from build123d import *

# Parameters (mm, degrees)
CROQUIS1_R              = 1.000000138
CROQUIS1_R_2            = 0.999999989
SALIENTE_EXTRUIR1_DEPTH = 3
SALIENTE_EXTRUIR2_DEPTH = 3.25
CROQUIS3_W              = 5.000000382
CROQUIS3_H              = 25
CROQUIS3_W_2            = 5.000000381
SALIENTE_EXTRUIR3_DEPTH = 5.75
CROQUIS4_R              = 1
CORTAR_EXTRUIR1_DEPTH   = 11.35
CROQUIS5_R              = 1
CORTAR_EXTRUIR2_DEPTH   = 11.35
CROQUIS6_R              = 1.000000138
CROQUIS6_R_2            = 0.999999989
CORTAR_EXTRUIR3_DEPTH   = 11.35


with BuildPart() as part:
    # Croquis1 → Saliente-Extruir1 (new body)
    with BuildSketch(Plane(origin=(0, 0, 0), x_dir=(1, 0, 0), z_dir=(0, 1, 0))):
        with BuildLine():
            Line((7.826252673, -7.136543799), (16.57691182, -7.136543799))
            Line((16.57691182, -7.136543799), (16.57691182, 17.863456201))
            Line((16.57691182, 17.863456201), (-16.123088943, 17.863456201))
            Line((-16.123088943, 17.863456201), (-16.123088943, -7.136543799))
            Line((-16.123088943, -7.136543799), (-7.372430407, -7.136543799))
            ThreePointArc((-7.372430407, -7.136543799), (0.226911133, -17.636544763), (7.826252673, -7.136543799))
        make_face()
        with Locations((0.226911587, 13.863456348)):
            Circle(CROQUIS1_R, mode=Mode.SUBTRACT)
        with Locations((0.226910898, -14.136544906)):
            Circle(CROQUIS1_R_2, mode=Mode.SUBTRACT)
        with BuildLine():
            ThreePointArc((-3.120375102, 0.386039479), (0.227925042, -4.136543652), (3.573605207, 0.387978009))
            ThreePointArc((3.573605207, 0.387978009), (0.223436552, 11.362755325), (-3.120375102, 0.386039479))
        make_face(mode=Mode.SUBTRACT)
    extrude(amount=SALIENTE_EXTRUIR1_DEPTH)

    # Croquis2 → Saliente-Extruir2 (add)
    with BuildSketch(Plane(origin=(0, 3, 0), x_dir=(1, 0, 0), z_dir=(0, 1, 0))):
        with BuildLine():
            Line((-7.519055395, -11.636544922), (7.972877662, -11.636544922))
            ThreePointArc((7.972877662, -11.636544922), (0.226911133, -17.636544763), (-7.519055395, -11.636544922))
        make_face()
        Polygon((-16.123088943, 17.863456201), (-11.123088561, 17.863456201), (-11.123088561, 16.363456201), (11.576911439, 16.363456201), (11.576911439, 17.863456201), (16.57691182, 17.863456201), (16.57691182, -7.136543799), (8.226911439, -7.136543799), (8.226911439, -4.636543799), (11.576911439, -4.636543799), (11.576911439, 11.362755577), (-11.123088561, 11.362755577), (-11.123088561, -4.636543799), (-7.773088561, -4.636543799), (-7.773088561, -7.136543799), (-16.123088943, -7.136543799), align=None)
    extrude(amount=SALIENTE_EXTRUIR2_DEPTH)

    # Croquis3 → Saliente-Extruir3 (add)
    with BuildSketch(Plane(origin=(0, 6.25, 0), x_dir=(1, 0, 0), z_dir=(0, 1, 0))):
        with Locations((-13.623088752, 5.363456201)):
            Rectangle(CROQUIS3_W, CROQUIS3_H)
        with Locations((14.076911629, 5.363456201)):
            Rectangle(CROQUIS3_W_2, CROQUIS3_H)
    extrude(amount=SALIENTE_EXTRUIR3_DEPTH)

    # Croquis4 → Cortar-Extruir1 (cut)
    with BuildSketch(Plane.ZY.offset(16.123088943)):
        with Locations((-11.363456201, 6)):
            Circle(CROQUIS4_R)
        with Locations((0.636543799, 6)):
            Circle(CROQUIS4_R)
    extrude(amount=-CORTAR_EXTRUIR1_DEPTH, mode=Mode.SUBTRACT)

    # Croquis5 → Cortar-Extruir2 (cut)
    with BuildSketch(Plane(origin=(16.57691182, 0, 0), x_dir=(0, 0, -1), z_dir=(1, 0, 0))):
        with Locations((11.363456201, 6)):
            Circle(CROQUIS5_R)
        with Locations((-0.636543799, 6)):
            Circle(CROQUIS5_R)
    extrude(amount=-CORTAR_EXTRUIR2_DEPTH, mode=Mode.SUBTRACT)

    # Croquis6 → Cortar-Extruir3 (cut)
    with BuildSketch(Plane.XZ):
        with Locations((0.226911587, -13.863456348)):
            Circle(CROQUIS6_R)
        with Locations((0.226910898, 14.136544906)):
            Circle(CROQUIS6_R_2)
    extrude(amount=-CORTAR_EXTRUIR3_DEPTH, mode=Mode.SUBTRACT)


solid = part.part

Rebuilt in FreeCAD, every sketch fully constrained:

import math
import FreeCAD as App
import Part
import Sketcher


def add_polygon(sketch, points):
    """Adds a closed chain of lines whose ends are joined by coincident constraints."""
    first, n = sketch.GeometryCount, len(points)
    for a, b in zip(points, points[1:] + points[:1]):
        sketch.addGeometry(Part.LineSegment(App.Vector(*a, 0), App.Vector(*b, 0)), False)
    for i in range(n):
        sketch.addConstraint(Sketcher.Constraint("Coincident", first + i, 2, first + (i + 1) % n, 1))

doc = App.newDocument("Part")
params = doc.addObject("Spreadsheet::Sheet", "Params")
for row, (alias, value) in enumerate([
    ("sketch1_diameter", "2 mm"),
    ("sketch1_radius", "8 mm"),
    ("sketch1_radius2", "3.5 mm"),
    ("sketch1_height", "25 mm"),
    ("sketch1_width", "32.700001 mm"),
    ("pad1_length", "3 mm"),
    ("sketch2_radius", "8 mm"),
    ("sketch2_width", "5 mm"),
    ("sketch2_height", "25 mm"),
    ("sketch2_width2", "22.7 mm"),
    ("sketch2_height2", "2.5 mm"),
    ("pad2_length", "3.25 mm"),
    ("sketch3_width", "5 mm"),
    ("sketch3_height", "25 mm"),
    ("pad3_length", "5.75 mm"),
    ("sketch4_diameter", "2 mm"),
    ("pocket1_length", "11.35 mm"),
    ("sketch5_diameter", "2 mm"),
    ("pocket2_length", "11.35 mm"),
    ("sketch6_diameter", "2 mm"),
    ("pocket3_length", "11.35 mm"),
], start=1):
    params.set(f"A{row}", alias)
    params.set(f"B{row}", "=" + value)
    params.setAlias(f"B{row}", alias)

body = doc.addObject("PartDesign::Body", "Body")

# Sketch on XZ plane
sketch1 = doc.addObject("Sketcher::SketchObject", "Sketch")
body.addObject(sketch1)
sketch1.AttachmentSupport = (doc.XZ_Plane, [""])
sketch1.MapMode = "FlatFace"
sketch1.addGeometry(Part.LineSegment(App.Vector(7.8, 7.1, 0), App.Vector(16.6, 7.1, 0)), False)
sketch1.addGeometry(Part.LineSegment(App.Vector(16.6, 7.1, 0), App.Vector(16.6, -17.9, 0)), False)
sketch1.addGeometry(Part.LineSegment(App.Vector(16.6, -17.9, 0), App.Vector(-16.1, -17.9, 0)), False)
sketch1.addGeometry(Part.LineSegment(App.Vector(-16.1, -17.9, 0), App.Vector(-16.1, 7.1, 0)), False)
sketch1.addGeometry(Part.LineSegment(App.Vector(-16.1, 7.1, 0), App.Vector(-7.4, 7.1, 0)), False)
sketch1.addGeometry(Part.ArcOfCircle(Part.Circle(App.Vector(0.2, 9.6, 0), App.Vector(0, 0, 1), 8), math.radians(-18), math.radians(198)), False)
sketch1.addGeometry(Part.Circle(App.Vector(0.2, 14.1, 0), App.Vector(0, 0, 1), 1), False)
sketch1.addGeometry(Part.ArcOfCircle(Part.Circle(App.Vector(0.2, 0.6, 0), App.Vector(0, 0, 1), 3.5), math.radians(-17), math.radians(197)), False)
sketch1.addGeometry(Part.ArcOfCircle(Part.Circle(App.Vector(0.2, -5.4, 0), App.Vector(0, 0, 1), 6), math.radians(124), math.radians(416)), False)
sketch1.addGeometry(Part.Circle(App.Vector(0.2, -13.9, 0), App.Vector(0, 0, 1), 1), False)
sketch1.addConstraint(Sketcher.Constraint("Coincident", 0, 2, 1, 1))
sketch1.addConstraint(Sketcher.Constraint("Coincident", 1, 2, 2, 1))
sketch1.addConstraint(Sketcher.Constraint("Coincident", 2, 2, 3, 1))
sketch1.addConstraint(Sketcher.Constraint("Coincident", 3, 2, 4, 1))
sketch1.addConstraint(Sketcher.Constraint("Coincident", 4, 2, 5, 2))
sketch1.addConstraint(Sketcher.Constraint("Coincident", 5, 1, 0, 1))
sketch1.addConstraint(Sketcher.Constraint("Coincident", 7, 1, 8, 2))
sketch1.addConstraint(Sketcher.Constraint("Coincident", 8, 1, 7, 2))
sketch1.addConstraint(Sketcher.Constraint("Horizontal", 0))
sketch1.addConstraint(Sketcher.Constraint("Vertical", 1))
sketch1.addConstraint(Sketcher.Constraint("Horizontal", 2))
sketch1.addConstraint(Sketcher.Constraint("Vertical", 3))
sketch1.addConstraint(Sketcher.Constraint("Horizontal", 4))
sketch1.addConstraint(Sketcher.Constraint("Equal", 6, 9))
sketch1.addConstraint(Sketcher.Constraint("Horizontal", 0, 2, 3, 2))
sketch1.addConstraint(Sketcher.Constraint("Vertical", 5, 3, 6, 3))
sketch1.addConstraint(Sketcher.Constraint("Vertical", 6, 3, 7, 3))
sketch1.addConstraint(Sketcher.Constraint("Vertical", 7, 3, 9, 3))
sketch1.addConstraint(Sketcher.Constraint("Equal", 0, 4))
sketch1.addConstraint(Sketcher.Constraint("Diameter", 6, 2.0))
sketch1.addConstraint(Sketcher.Constraint("Radius", 5, 8.0))
sketch1.addConstraint(Sketcher.Constraint("Radius", 7, 3.5))
sketch1.addConstraint(Sketcher.Constraint("DistanceY", 1, 2, 1, 1, 25.0))
sketch1.addConstraint(Sketcher.Constraint("DistanceX", 2, 2, 2, 1, 32.700001))
sketch1.addConstraint(Sketcher.Constraint("DistanceY", 7, 3, 5, 3, 9.000002))
sketch1.addConstraint(Sketcher.Constraint("DistanceY", 9, 3, 6, 3, 28.000001))
sketch1.addConstraint(Sketcher.Constraint("DistanceY", 0, 2, 6, 3, 7.000001))
sketch1.addConstraint(Sketcher.Constraint("DistanceY", 5, 3, 6, 3, 4.5))
sketch1.addConstraint(Sketcher.Constraint("Radius", 8, 5.998196))
sketch1.addConstraint(Sketcher.Constraint("DistanceX", -1, 1, 5, 3, 0.226911))
sketch1.addConstraint(Sketcher.Constraint("DistanceY", 8, 3, -1, 1, 5.364559))
sketch1.addConstraint(Sketcher.Constraint("DistanceY", 7, 1, -1, 1, 0.387978))
sketch1.addConstraint(Sketcher.Constraint("DistanceY", 8, 1, -1, 1, 0.386039))
sketch1.setExpression("Constraints[19]", "Params.sketch1_diameter")
sketch1.setExpression("Constraints[20]", "Params.sketch1_radius")
sketch1.setExpression("Constraints[21]", "Params.sketch1_radius2")
sketch1.setExpression("Constraints[22]", "Params.sketch1_height")
sketch1.setExpression("Constraints[23]", "Params.sketch1_width")
pad1 = doc.addObject("PartDesign::Pad", "Pad")
body.addObject(pad1)
pad1.Profile = sketch1
pad1.setExpression("Length", "Params.pad1_length")
pad1.Reversed = True

# Sketch on XZ plane
sketch2 = doc.addObject("Sketcher::SketchObject", "Sketch001")
body.addObject(sketch2)
sketch2.AttachmentSupport = (doc.XZ_Plane, [""])
sketch2.MapMode = "FlatFace"
sketch2.AttachmentOffset = App.Placement(App.Vector(0, 0, -3), App.Rotation())
sketch2.addGeometry(Part.LineSegment(App.Vector(8, 11.6, 0), App.Vector(-7.5, 11.6, 0)), False)  # 0
sketch2.addGeometry(Part.ArcOfCircle(Part.Circle(App.Vector(0.2, 9.6, 0), App.Vector(0, 0, 1), 8), math.radians(14), math.radians(166)), False)  # 1
add_polygon(sketch2, [(-11.1, -17.9), (-16.1, -17.9), (-16.1, 7.1), (-7.8, 7.1), (-7.8, 4.6), (-11.1, 4.6), (-11.1, -11.4), (11.6, -11.4), (11.6, 4.6), (8.2, 4.6), (8.2, 7.1), (16.6, 7.1), (16.6, -17.9), (11.6, -17.9), (11.6, -16.4), (-11.1, -16.4)])  # lines 2-17
sketch2.addConstraint(Sketcher.Constraint("Coincident", 0, 1, 1, 1))
sketch2.addConstraint(Sketcher.Constraint("Coincident", 1, 2, 0, 2))
sketch2.addConstraint(Sketcher.Constraint("Horizontal", 0))
sketch2.addConstraint(Sketcher.Constraint("Horizontal", 2))
sketch2.addConstraint(Sketcher.Constraint("Vertical", 3))
sketch2.addConstraint(Sketcher.Constraint("Horizontal", 4))
sketch2.addConstraint(Sketcher.Constraint("Vertical", 5))
sketch2.addConstraint(Sketcher.Constraint("Horizontal", 6))
sketch2.addConstraint(Sketcher.Constraint("Vertical", 7))
sketch2.addConstraint(Sketcher.Constraint("Horizontal", 8))
sketch2.addConstraint(Sketcher.Constraint("Vertical", 9))
sketch2.addConstraint(Sketcher.Constraint("Horizontal", 10))
sketch2.addConstraint(Sketcher.Constraint("Vertical", 11))
sketch2.addConstraint(Sketcher.Constraint("Horizontal", 12))
sketch2.addConstraint(Sketcher.Constraint("Vertical", 13))
sketch2.addConstraint(Sketcher.Constraint("Horizontal", 14))
sketch2.addConstraint(Sketcher.Constraint("Vertical", 15))
sketch2.addConstraint(Sketcher.Constraint("Horizontal", 16))
sketch2.addConstraint(Sketcher.Constraint("Vertical", 17))
sketch2.addConstraint(Sketcher.Constraint("Horizontal", 6, 2, 9, 2))
sketch2.addConstraint(Sketcher.Constraint("Horizontal", 4, 2, 11, 2))
sketch2.addConstraint(Sketcher.Constraint("Horizontal", 2, 2, 13, 2))
sketch2.addConstraint(Sketcher.Constraint("Vertical", 9, 2, 14, 2))
sketch2.addConstraint(Sketcher.Constraint("Vertical", 7, 2, 16, 2))
sketch2.addConstraint(Sketcher.Constraint("Equal", 6, 10))
sketch2.addConstraint(Sketcher.Constraint("Equal", 4, 12))
sketch2.addConstraint(Sketcher.Constraint("Radius", 1, 8.0))
sketch2.addConstraint(Sketcher.Constraint("DistanceX", 2, 2, 2, 1, 5.0))
sketch2.addConstraint(Sketcher.Constraint("DistanceY", 3, 1, 3, 2, 25.0))
sketch2.addConstraint(Sketcher.Constraint("DistanceX", 8, 1, 8, 2, 22.7))
sketch2.addConstraint(Sketcher.Constraint("DistanceY", 5, 2, 5, 1, 2.5))
sketch2.addConstraint(Sketcher.Constraint("DistanceY", 15, 1, 15, 2, 1.5))
sketch2.addConstraint(Sketcher.Constraint("DistanceY", 1, 3, 0, 1, 2.0))
sketch2.addConstraint(Sketcher.Constraint("DistanceX", 4, 2, 1, 3, 8.0))
sketch2.addConstraint(Sketcher.Constraint("DistanceY", 5, 2, 1, 2, 7.000001))
sketch2.addConstraint(Sketcher.Constraint("DistanceX", 1, 3, 10, 2, 8.0))
sketch2.addConstraint(Sketcher.Constraint("DistanceY", 7, 2, 7, 1, 15.999299))
sketch2.addConstraint(Sketcher.Constraint("DistanceX", -1, 1, 1, 3, 0.226911))
sketch2.addConstraint(Sketcher.Constraint("DistanceY", -1, 1, 1, 3, 9.636545))
sketch2.setExpression("Constraints[42]", "Params.sketch2_radius")
sketch2.setExpression("Constraints[43]", "Params.sketch2_width")
sketch2.setExpression("Constraints[44]", "Params.sketch2_height")
sketch2.setExpression("Constraints[45]", "Params.sketch2_width2")
sketch2.setExpression("Constraints[46]", "Params.sketch2_height2")
pad2 = doc.addObject("PartDesign::Pad", "Pad001")
body.addObject(pad2)
pad2.Profile = sketch2
pad2.setExpression("Length", "Params.pad2_length")
pad2.Reversed = True

# Sketch on XZ plane
sketch3 = doc.addObject("Sketcher::SketchObject", "Sketch002")
body.addObject(sketch3)
sketch3.AttachmentSupport = (doc.XZ_Plane, [""])
sketch3.MapMode = "FlatFace"
sketch3.AttachmentOffset = App.Placement(App.Vector(0, 0, -6.25), App.Rotation())
add_polygon(sketch3, [(-16, -18), (-16, 7), (-11, 7), (-11, -18)])  # lines 0-3
add_polygon(sketch3, [(12, -18), (12, 7), (17, 7), (17, -18)])  # lines 4-7
sketch3.addConstraint(Sketcher.Constraint("Vertical", 0))
sketch3.addConstraint(Sketcher.Constraint("Horizontal", 1))
sketch3.addConstraint(Sketcher.Constraint("Vertical", 2))
sketch3.addConstraint(Sketcher.Constraint("Horizontal", 3))
sketch3.addConstraint(Sketcher.Constraint("Vertical", 4))
sketch3.addConstraint(Sketcher.Constraint("Horizontal", 5))
sketch3.addConstraint(Sketcher.Constraint("Vertical", 6))
sketch3.addConstraint(Sketcher.Constraint("Horizontal", 7))
sketch3.addConstraint(Sketcher.Constraint("Horizontal", 1, 2, 4, 2))
sketch3.addConstraint(Sketcher.Constraint("Horizontal", 3, 2, 6, 2))
sketch3.addConstraint(Sketcher.Constraint("Equal", 3, 5))
sketch3.addConstraint(Sketcher.Constraint("DistanceX", 1, 1, 1, 2, 5.0))
sketch3.addConstraint(Sketcher.Constraint("DistanceY", 0, 1, 0, 2, 25.0))
sketch3.addConstraint(Sketcher.Constraint("DistanceX", 1, 2, 4, 2, 22.7))
sketch3.addConstraint(Sketcher.Constraint("DistanceX", 0, 2, -1, 1, 16.123089))
sketch3.addConstraint(Sketcher.Constraint("DistanceY", -1, 1, 0, 2, 7.136544))
sketch3.setExpression("Constraints[19]", "Params.sketch3_width")
sketch3.setExpression("Constraints[20]", "Params.sketch3_height")
pad3 = doc.addObject("PartDesign::Pad", "Pad002")
body.addObject(pad3)
pad3.Profile = sketch3
pad3.setExpression("Length", "Params.pad3_length")
pad3.Reversed = True

# Sketch on YZ plane
sketch4 = doc.addObject("Sketcher::SketchObject", "Sketch003")
body.addObject(sketch4)
sketch4.AttachmentSupport = (doc.YZ_Plane, [""])
sketch4.MapMode = "FlatFace"
sketch4.AttachmentOffset = App.Placement(App.Vector(0, 0, -16.123089), App.Rotation())
sketch4.addGeometry(Part.Circle(App.Vector(6, -11.4, 0), App.Vector(0, 0, 1), 1), False)
sketch4.addGeometry(Part.Circle(App.Vector(6, 0.6, 0), App.Vector(0, 0, 1), 1), False)
sketch4.addConstraint(Sketcher.Constraint("Equal", 0, 1))
sketch4.addConstraint(Sketcher.Constraint("Vertical", 0, 3, 1, 3))
sketch4.addConstraint(Sketcher.Constraint("Diameter", 0, 2.0))
sketch4.addConstraint(Sketcher.Constraint("DistanceX", -1, 1, 0, 3, 6.0))
sketch4.addConstraint(Sketcher.Constraint("DistanceY", 0, 3, 1, 3, 12.0))
sketch4.addConstraint(Sketcher.Constraint("DistanceY", 0, 3, -1, 1, 11.363456))
sketch4.setExpression("Constraints[2]", "Params.sketch4_diameter")
pocket1 = doc.addObject("PartDesign::Pocket", "Pocket")
body.addObject(pocket1)
pocket1.Profile = sketch4
pocket1.setExpression("Length", "Params.pocket1_length")
pocket1.Reversed = True

# Sketch on YZ plane
sketch5 = doc.addObject("Sketcher::SketchObject", "Sketch004")
body.addObject(sketch5)
sketch5.AttachmentSupport = (doc.YZ_Plane, [""])
sketch5.MapMode = "FlatFace"
sketch5.AttachmentOffset = App.Placement(App.Vector(0, 0, 16.576912), App.Rotation())
sketch5.addGeometry(Part.Circle(App.Vector(6, -11.4, 0), App.Vector(0, 0, 1), 1), False)
sketch5.addGeometry(Part.Circle(App.Vector(6, 0.6, 0), App.Vector(0, 0, 1), 1), False)
sketch5.addConstraint(Sketcher.Constraint("Equal", 0, 1))
sketch5.addConstraint(Sketcher.Constraint("Vertical", 0, 3, 1, 3))
sketch5.addConstraint(Sketcher.Constraint("Diameter", 0, 2.0))
sketch5.addConstraint(Sketcher.Constraint("DistanceX", -1, 1, 0, 3, 6.0))
sketch5.addConstraint(Sketcher.Constraint("DistanceY", 0, 3, 1, 3, 12.0))
sketch5.addConstraint(Sketcher.Constraint("DistanceY", 0, 3, -1, 1, 11.363456))
sketch5.setExpression("Constraints[2]", "Params.sketch5_diameter")
pocket2 = doc.addObject("PartDesign::Pocket", "Pocket001")
body.addObject(pocket2)
pocket2.Profile = sketch5
pocket2.setExpression("Length", "Params.pocket2_length")

# Sketch on XZ plane
sketch6 = doc.addObject("Sketcher::SketchObject", "Sketch005")
body.addObject(sketch6)
sketch6.AttachmentSupport = (doc.XZ_Plane, [""])
sketch6.MapMode = "FlatFace"
sketch6.addGeometry(Part.Circle(App.Vector(0.2, -13.9, 0), App.Vector(0, 0, 1), 1), False)
sketch6.addGeometry(Part.Circle(App.Vector(0.2, 14.1, 0), App.Vector(0, 0, 1), 1), False)
sketch6.addConstraint(Sketcher.Constraint("Equal", 0, 1))
sketch6.addConstraint(Sketcher.Constraint("Vertical", 0, 3, 1, 3))
sketch6.addConstraint(Sketcher.Constraint("Diameter", 0, 2.0))
sketch6.addConstraint(Sketcher.Constraint("DistanceY", 0, 3, 1, 3, 28.000001))
sketch6.addConstraint(Sketcher.Constraint("DistanceX", -1, 1, 0, 3, 0.226912))
sketch6.addConstraint(Sketcher.Constraint("DistanceY", 0, 3, -1, 1, 13.863456))
sketch6.setExpression("Constraints[2]", "Params.sketch6_diameter")
pocket3 = doc.addObject("PartDesign::Pocket", "Pocket002")
body.addObject(pocket3)
pocket3.Profile = sketch6
pocket3.setExpression("Length", "Params.pocket3_length")

doc.recompute()
